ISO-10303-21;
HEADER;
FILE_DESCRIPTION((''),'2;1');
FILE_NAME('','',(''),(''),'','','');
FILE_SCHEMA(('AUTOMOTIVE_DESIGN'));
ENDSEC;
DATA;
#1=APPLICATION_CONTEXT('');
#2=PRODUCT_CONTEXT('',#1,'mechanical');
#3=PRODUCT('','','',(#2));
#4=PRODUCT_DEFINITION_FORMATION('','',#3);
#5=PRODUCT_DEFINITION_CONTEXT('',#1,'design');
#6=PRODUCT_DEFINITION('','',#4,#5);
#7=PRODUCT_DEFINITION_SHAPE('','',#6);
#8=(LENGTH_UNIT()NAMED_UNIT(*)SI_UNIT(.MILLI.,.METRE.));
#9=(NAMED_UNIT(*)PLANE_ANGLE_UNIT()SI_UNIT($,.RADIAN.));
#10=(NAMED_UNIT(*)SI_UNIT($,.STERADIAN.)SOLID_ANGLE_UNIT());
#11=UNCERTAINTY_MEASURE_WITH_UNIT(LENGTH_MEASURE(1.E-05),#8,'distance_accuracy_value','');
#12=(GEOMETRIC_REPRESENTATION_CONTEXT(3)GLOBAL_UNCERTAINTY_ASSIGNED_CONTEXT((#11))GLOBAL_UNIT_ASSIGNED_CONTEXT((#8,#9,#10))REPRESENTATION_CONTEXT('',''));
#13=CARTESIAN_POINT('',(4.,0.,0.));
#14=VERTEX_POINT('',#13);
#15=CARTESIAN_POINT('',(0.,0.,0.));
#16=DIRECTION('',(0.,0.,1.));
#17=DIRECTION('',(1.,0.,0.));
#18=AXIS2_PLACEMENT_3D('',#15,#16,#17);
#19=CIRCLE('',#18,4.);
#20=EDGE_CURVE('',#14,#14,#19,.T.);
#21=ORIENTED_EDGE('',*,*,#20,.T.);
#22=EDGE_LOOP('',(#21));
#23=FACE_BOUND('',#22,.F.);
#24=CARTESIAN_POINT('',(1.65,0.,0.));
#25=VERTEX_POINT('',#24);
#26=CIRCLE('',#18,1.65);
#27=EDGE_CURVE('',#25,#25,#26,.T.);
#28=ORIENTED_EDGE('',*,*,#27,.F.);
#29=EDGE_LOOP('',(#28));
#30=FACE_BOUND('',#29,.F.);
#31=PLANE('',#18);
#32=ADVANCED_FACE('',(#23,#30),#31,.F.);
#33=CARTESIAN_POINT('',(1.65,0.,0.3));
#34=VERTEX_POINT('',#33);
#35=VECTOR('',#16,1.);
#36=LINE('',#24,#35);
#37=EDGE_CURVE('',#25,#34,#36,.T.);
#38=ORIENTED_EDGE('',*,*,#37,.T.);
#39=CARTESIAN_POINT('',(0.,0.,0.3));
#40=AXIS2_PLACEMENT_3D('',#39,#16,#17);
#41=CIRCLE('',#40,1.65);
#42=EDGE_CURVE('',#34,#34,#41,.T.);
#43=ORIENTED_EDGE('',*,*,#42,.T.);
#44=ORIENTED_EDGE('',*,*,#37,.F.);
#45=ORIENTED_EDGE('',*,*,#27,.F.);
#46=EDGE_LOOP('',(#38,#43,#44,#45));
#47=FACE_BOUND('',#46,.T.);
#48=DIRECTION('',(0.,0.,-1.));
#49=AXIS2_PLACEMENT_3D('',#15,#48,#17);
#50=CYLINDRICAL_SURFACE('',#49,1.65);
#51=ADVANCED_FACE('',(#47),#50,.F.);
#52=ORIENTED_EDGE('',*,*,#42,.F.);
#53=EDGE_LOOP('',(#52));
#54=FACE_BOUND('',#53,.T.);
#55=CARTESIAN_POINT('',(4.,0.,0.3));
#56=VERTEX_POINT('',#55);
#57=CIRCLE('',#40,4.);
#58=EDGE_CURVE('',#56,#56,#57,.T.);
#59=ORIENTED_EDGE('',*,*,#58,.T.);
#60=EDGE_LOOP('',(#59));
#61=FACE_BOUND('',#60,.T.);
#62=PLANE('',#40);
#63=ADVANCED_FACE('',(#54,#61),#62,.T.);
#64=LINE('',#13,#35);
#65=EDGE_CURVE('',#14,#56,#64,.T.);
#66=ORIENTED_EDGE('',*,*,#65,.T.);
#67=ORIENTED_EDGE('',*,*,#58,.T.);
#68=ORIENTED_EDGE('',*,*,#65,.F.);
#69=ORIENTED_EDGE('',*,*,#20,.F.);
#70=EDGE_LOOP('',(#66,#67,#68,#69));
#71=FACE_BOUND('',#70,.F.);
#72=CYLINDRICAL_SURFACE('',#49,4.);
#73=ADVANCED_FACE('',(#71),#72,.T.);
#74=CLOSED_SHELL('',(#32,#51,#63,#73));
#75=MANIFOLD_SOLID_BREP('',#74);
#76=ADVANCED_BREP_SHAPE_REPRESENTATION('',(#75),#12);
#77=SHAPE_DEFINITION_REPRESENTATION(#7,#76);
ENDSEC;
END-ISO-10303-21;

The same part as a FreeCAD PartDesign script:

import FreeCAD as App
import Part
import Sketcher

doc = App.newDocument("Part")
body = doc.addObject("PartDesign::Body", "Body")

# Sketch on XY plane
sketch1 = doc.addObject("Sketcher::SketchObject", "Sketch")
body.addObject(sketch1)
sketch1.AttachmentSupport = (doc.XY_Plane, [""])
sketch1.MapMode = "FlatFace"
sketch1.addGeometry([
    Part.Circle(App.Vector(0, 0, 0), App.Vector(0, 0, 1), 4),
    Part.Circle(App.Vector(0, 0, 0), App.Vector(0, 0, 1), 1.6),
], False)
sketch1.addConstraint([
    Sketcher.Constraint("Coincident", 0, 3, -1, 1),
    Sketcher.Constraint("Coincident", 1, 3, -1, 1),
    Sketcher.Constraint("Diameter", 0, 8.0),
    Sketcher.Constraint("Diameter", 1, 3.3),
])
pad1 = doc.addObject("PartDesign::Pad", "Pad")
body.addObject(pad1)
pad1.Profile = sketch1
pad1.Length = 0.3

doc.recompute()
